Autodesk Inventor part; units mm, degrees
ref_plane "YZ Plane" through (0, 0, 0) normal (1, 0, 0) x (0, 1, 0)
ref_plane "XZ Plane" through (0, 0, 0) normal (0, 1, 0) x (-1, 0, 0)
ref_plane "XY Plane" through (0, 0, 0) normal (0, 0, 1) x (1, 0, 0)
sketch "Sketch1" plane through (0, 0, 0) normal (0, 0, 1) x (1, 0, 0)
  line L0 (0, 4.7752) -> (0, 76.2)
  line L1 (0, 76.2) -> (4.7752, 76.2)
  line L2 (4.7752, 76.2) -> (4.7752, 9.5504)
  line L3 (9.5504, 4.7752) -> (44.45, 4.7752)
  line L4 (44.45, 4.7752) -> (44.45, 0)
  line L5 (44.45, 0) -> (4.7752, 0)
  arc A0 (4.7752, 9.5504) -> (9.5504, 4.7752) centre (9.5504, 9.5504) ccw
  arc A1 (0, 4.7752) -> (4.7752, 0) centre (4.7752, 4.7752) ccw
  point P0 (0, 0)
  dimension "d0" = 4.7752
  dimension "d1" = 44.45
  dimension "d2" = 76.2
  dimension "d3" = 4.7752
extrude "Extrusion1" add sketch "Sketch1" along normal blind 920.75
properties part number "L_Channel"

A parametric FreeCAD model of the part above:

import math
import FreeCAD as App
import Part
import Sketcher
Q = App.Units.Quantity

doc = App.newDocument("Part")
body = doc.addObject("PartDesign::Body", "Body")

sketch1 = doc.addObject("Sketcher::SketchObject", "Sketch")
body.addObject(sketch1)
sketch1.AttachmentSupport = (doc.XY_Plane, [""])
sketch1.MapMode = "FlatFace"
sketch1.addGeometry([
    Part.LineSegment(App.Vector(0, 76.2, 0), App.Vector(0, 4.8, 0)),
    Part.ArcOfCircle(Part.Circle(App.Vector(4.8, 4.8, 0), App.Vector(0, 0, 1), 4.8), math.radians(180), math.radians(270)),
    Part.LineSegment(App.Vector(4.8, 0, 0), App.Vector(44.5, 0, 0)),
    Part.LineSegment(App.Vector(44.5, 0, 0), App.Vector(44.5, 4.8, 0)),
    Part.LineSegment(App.Vector(44.5, 4.8, 0), App.Vector(9.6, 4.8, 0)),
    Part.ArcOfCircle(Part.Circle(App.Vector(9.6, 9.6, 0), App.Vector(0, 0, 1), 4.8), math.radians(180), math.radians(270)),
    Part.LineSegment(App.Vector(4.8, 9.6, 0), App.Vector(4.8, 76.2, 0)),
    Part.LineSegment(App.Vector(4.8, 76.2, 0), App.Vector(0, 76.2, 0)),
], False)
sketch1.addConstraint([
    Sketcher.Constraint("Tangent", 0, 2, 1, 1),
    Sketcher.Constraint("Tangent", 1, 2, 2, 1),
    Sketcher.Constraint("Coincident", 2, 2, 3, 1),
    Sketcher.Constraint("Coincident", 3, 2, 4, 1),
    Sketcher.Constraint("Tangent", 4, 2, 5, 2),
    Sketcher.Constraint("Tangent", 5, 1, 6, 1),
    Sketcher.Constraint("Coincident", 6, 2, 7, 1),
    Sketcher.Constraint("Coincident", 7, 2, 0, 1),
    Sketcher.Constraint("Vertical", 0),
    Sketcher.Constraint("Horizontal", 2),
    Sketcher.Constraint("Vertical", 3),
    Sketcher.Constraint("Horizontal", 4),
    Sketcher.Constraint("Vertical", 6),
    Sketcher.Constraint("Horizontal", 7),
    Sketcher.Constraint("Equal", 1, 5),
    Sketcher.Constraint("PointOnObject", 0, 2, -2),
    Sketcher.Constraint("PointOnObject", 1, 2, -1),
    Sketcher.Constraint("Horizontal", 0, 2, 3, 2),
    Sketcher.Constraint("Vertical", 1, 2, 5, 1),
    Sketcher.Constraint("DistanceY", -1, 1, 6, 2, Q("3 in")),
    Sketcher.Constraint("Radius", 1, Q("0.188 in")),
    Sketcher.Constraint("DistanceX", -1, 1, 2, 2, Q("1.75 in")),
])
pad1 = doc.addObject("PartDesign::Pad", "Pad")
body.addObject(pad1)
pad1.Profile = sketch1
pad1.Length = Q("36.25 in")

doc.recompute()
